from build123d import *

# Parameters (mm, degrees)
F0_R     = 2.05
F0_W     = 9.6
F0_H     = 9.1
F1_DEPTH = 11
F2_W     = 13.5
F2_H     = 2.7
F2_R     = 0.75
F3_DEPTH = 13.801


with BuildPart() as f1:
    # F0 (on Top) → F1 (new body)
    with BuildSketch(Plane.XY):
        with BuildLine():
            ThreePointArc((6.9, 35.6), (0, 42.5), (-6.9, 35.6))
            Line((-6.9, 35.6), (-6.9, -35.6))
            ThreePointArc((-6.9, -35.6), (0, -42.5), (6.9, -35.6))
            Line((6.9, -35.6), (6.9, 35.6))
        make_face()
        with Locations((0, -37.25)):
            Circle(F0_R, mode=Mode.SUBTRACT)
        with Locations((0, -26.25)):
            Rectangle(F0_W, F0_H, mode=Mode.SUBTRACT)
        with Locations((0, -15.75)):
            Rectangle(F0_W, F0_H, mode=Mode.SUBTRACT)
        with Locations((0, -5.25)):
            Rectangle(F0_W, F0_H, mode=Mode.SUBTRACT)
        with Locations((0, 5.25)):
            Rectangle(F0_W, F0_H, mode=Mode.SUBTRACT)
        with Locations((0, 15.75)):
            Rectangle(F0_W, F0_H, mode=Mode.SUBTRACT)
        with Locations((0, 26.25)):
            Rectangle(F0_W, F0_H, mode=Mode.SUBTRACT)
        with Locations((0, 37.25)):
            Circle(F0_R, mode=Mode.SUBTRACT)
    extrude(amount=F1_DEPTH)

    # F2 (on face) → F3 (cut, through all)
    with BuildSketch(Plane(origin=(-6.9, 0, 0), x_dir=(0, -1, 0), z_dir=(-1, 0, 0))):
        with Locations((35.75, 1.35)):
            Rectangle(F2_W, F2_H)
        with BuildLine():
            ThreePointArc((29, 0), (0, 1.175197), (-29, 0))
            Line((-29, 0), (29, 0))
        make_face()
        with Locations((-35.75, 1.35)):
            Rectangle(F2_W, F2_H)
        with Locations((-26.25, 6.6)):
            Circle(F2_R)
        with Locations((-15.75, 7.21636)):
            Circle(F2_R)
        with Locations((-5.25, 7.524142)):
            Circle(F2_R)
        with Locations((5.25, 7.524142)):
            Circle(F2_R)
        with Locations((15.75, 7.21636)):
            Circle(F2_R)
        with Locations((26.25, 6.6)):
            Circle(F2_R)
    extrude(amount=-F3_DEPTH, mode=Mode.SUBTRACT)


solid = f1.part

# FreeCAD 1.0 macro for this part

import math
import FreeCAD as App
import Part
import Sketcher
Q = App.Units.Quantity

doc = App.newDocument("Part")
body = doc.addObject("PartDesign::Body", "Body")

sketch1 = body.newObject("Sketcher::SketchObject", "Sketch")
sketch1.AttachmentSupport = (doc.getObject("XY_Plane"), [""])
sketch1.MapMode = "FlatFace"
sketch1.addGeometry(Part.ArcOfCircle(Part.Circle(App.Vector(0, 35.6, 0), App.Vector(0, 0, 1), 6.9), math.radians(0), math.radians(180)), False)
sketch1.addGeometry(Part.LineSegment(App.Vector(-6.9, 35.6, 0), App.Vector(-6.9, -35.6, 0)), False)
sketch1.addGeometry(Part.ArcOfCircle(Part.Circle(App.Vector(0, -35.6, 0), App.Vector(0, 0, 1), 6.9), math.radians(180), math.radians(360)), False)
sketch1.addGeometry(Part.LineSegment(App.Vector(6.9, -35.6, 0), App.Vector(6.9, 35.6, 0)), False)
sketch1.addGeometry(Part.Circle(App.Vector(0, -37.2, 0), App.Vector(0, 0, 1), 2), False)
sketch1.addGeometry(Part.LineSegment(App.Vector(4.8, -30.8, 0), App.Vector(-4.8, -30.8, 0)), False)
sketch1.addGeometry(Part.LineSegment(App.Vector(-4.8, -30.8, 0), App.Vector(-4.8, -21.7, 0)), False)
sketch1.addGeometry(Part.LineSegment(App.Vector(-4.8, -21.7, 0), App.Vector(4.8, -21.7, 0)), False)
sketch1.addGeometry(Part.LineSegment(App.Vector(4.8, -21.7, 0), App.Vector(4.8, -30.8, 0)), False)
sketch1.addGeometry(Part.LineSegment(App.Vector(4.8, -20.3, 0), App.Vector(-4.8, -20.3, 0)), False)
sketch1.addGeometry(Part.LineSegment(App.Vector(-4.8, -20.3, 0), App.Vector(-4.8, -11.2, 0)), False)
sketch1.addGeometry(Part.LineSegment(App.Vector(-4.8, -11.2, 0), App.Vector(4.8, -11.2, 0)), False)
sketch1.addGeometry(Part.LineSegment(App.Vector(4.8, -11.2, 0), App.Vector(4.8, -20.3, 0)), False)
sketch1.addGeometry(Part.LineSegment(App.Vector(4.8, -9.8, 0), App.Vector(-4.8, -9.8, 0)), False)
sketch1.addGeometry(Part.LineSegment(App.Vector(-4.8, -9.8, 0), App.Vector(-4.8, -0.7, 0)), False)
sketch1.addGeometry(Part.LineSegment(App.Vector(-4.8, -0.7, 0), App.Vector(4.8, -0.7, 0)), False)
sketch1.addGeometry(Part.LineSegment(App.Vector(4.8, -0.7, 0), App.Vector(4.8, -9.8, 0)), False)
sketch1.addGeometry(Part.LineSegment(App.Vector(4.8, 0.7, 0), App.Vector(-4.8, 0.7, 0)), False)
sketch1.addGeometry(Part.LineSegment(App.Vector(-4.8, 0.7, 0), App.Vector(-4.8, 9.8, 0)), False)
sketch1.addGeometry(Part.LineSegment(App.Vector(-4.8, 9.8, 0), App.Vector(4.8, 9.8, 0)), False)
sketch1.addGeometry(Part.LineSegment(App.Vector(4.8, 9.8, 0), App.Vector(4.8, 0.7, 0)), False)
sketch1.addGeometry(Part.LineSegment(App.Vector(4.8, 11.2, 0), App.Vector(-4.8, 11.2, 0)), False)
sketch1.addGeometry(Part.LineSegment(App.Vector(-4.8, 11.2, 0), App.Vector(-4.8, 20.3, 0)), False)
sketch1.addGeometry(Part.LineSegment(App.Vector(-4.8, 20.3, 0), App.Vector(4.8, 20.3, 0)), False)
sketch1.addGeometry(Part.LineSegment(App.Vector(4.8, 20.3, 0), App.Vector(4.8, 11.2, 0)), False)
sketch1.addGeometry(Part.LineSegment(App.Vector(4.8, 21.7, 0), App.Vector(-4.8, 21.7, 0)), False)
sketch1.addGeometry(Part.LineSegment(App.Vector(-4.8, 21.7, 0), App.Vector(-4.8, 30.8, 0)), False)
sketch1.addGeometry(Part.LineSegment(App.Vector(-4.8, 30.8, 0), App.Vector(4.8, 30.8, 0)), False)
sketch1.addGeometry(Part.LineSegment(App.Vector(4.8, 30.8, 0), App.Vector(4.8, 21.7, 0)), False)
sketch1.addGeometry(Part.Circle(App.Vector(0, 37.2, 0), App.Vector(0, 0, 1), 2), False)
sketch1.addConstraint(Sketcher.Constraint("Tangent", 0, 2, 1, 1))
sketch1.addConstraint(Sketcher.Constraint("Tangent", 1, 2, 2, 1))
sketch1.addConstraint(Sketcher.Constraint("Tangent", 2, 2, 3, 1))
sketch1.addConstraint(Sketcher.Constraint("Tangent", 3, 2, 0, 1))
sketch1.addConstraint(Sketcher.Constraint("Coincident", 5, 2, 6, 1))
sketch1.addConstraint(Sketcher.Constraint("Coincident", 6, 2, 7, 1))
sketch1.addConstraint(Sketcher.Constraint("Coincident", 7, 2, 8, 1))
sketch1.addConstraint(Sketcher.Constraint("Coincident", 8, 2, 5, 1))
sketch1.addConstraint(Sketcher.Constraint("Coincident", 9, 2, 10, 1))
sketch1.addConstraint(Sketcher.Constraint("Coincident", 10, 2, 11, 1))
sketch1.addConstraint(Sketcher.Constraint("Coincident", 11, 2, 12, 1))
sketch1.addConstraint(Sketcher.Constraint("Coincident", 12, 2, 9, 1))
sketch1.addConstraint(Sketcher.Constraint("Coincident", 13, 2, 14, 1))
sketch1.addConstraint(Sketcher.Constraint("Coincident", 14, 2, 15, 1))
sketch1.addConstraint(Sketcher.Constraint("Coincident", 15, 2, 16, 1))
sketch1.addConstraint(Sketcher.Constraint("Coincident", 16, 2, 13, 1))
sketch1.addConstraint(Sketcher.Constraint("Coincident", 17, 2, 18, 1))
sketch1.addConstraint(Sketcher.Constraint("Coincident", 18, 2, 19, 1))
sketch1.addConstraint(Sketcher.Constraint("Coincident", 19, 2, 20, 1))
sketch1.addConstraint(Sketcher.Constraint("Coincident", 20, 2, 17, 1))
sketch1.addConstraint(Sketcher.Constraint("Coincident", 21, 2, 22, 1))
sketch1.addConstraint(Sketcher.Constraint("Coincident", 22, 2, 23, 1))
sketch1.addConstraint(Sketcher.Constraint("Coincident", 23, 2, 24, 1))
sketch1.addConstraint(Sketcher.Constraint("Coincident", 24, 2, 21, 1))
sketch1.addConstraint(Sketcher.Constraint("Coincident", 25, 2, 26, 1))
sketch1.addConstraint(Sketcher.Constraint("Coincident", 26, 2, 27, 1))
sketch1.addConstraint(Sketcher.Constraint("Coincident", 27, 2, 28, 1))
sketch1.addConstraint(Sketcher.Constraint("Coincident", 28, 2, 25, 1))
sketch1.addConstraint(Sketcher.Constraint("Vertical", 1))
sketch1.addConstraint(Sketcher.Constraint("Vertical", 3))
sketch1.addConstraint(Sketcher.Constraint("Horizontal", 5))
sketch1.addConstraint(Sketcher.Constraint("Vertical", 6))
sketch1.addConstraint(Sketcher.Constraint("Horizontal", 7))
sketch1.addConstraint(Sketcher.Constraint("Vertical", 8))
sketch1.addConstraint(Sketcher.Constraint("Horizontal", 9))
sketch1.addConstraint(Sketcher.Constraint("Vertical", 10))
sketch1.addConstraint(Sketcher.Constraint("Horizontal", 11))
sketch1.addConstraint(Sketcher.Constraint("Vertical", 12))
sketch1.addConstraint(Sketcher.Constraint("Horizontal", 13))
sketch1.addConstraint(Sketcher.Constraint("Vertical", 14))
sketch1.addConstraint(Sketcher.Constraint("Horizontal", 15))
sketch1.addConstraint(Sketcher.Constraint("Vertical", 16))
sketch1.addConstraint(Sketcher.Constraint("Horizontal", 17))
sketch1.addConstraint(Sketcher.Constraint("Vertical", 18))
sketch1.addConstraint(Sketcher.Constraint("Horizontal", 19))
sketch1.addConstraint(Sketcher.Constraint("Vertical", 20))
sketch1.addConstraint(Sketcher.Constraint("Horizontal", 21))
sketch1.addConstraint(Sketcher.Constraint("Vertical", 22))
sketch1.addConstraint(Sketcher.Constraint("Horizontal", 23))
sketch1.addConstraint(Sketcher.Constraint("Vertical", 24))
sketch1.addConstraint(Sketcher.Constraint("Horizontal", 25))
sketch1.addConstraint(Sketcher.Constraint("Vertical", 26))
sketch1.addConstraint(Sketcher.Constraint("Horizontal", 27))
sketch1.addConstraint(Sketcher.Constraint("Vertical", 28))
sketch1.addConstraint(Sketcher.Constraint("Equal", 4, 29))
sketch1.addConstraint(Sketcher.Constraint("Symmetric", 0, 3, 2, 3, -1, 1))
sketch1.addConstraint(Sketcher.Constraint("Symmetric", 4, 3, 29, 3, -1, 1))
sketch1.addConstraint(Sketcher.Constraint("Symmetric", 15, 2, 17, 2, -1, 1))
sketch1.addConstraint(Sketcher.Constraint("Symmetric", 13, 2, 19, 2, -1, 1))
sketch1.addConstraint(Sketcher.Constraint("Symmetric", 11, 2, 21, 2, -1, 1))
sketch1.addConstraint(Sketcher.Constraint("Symmetric", 9, 2, 23, 2, -1, 1))
sketch1.addConstraint(Sketcher.Constraint("Symmetric", 7, 2, 25, 2, -1, 1))
sketch1.addConstraint(Sketcher.Constraint("Symmetric", 5, 2, 27, 2, -1, 1))
sketch1.addConstraint(Sketcher.Constraint("PointOnObject", 4, 3, -2))
sketch1.addConstraint(Sketcher.Constraint("Vertical", 6, 2, 9, 2))
sketch1.addConstraint(Sketcher.Constraint("Vertical", 8, 2, 11, 2))
sketch1.addConstraint(Sketcher.Constraint("Vertical", 10, 2, 13, 2))
sketch1.addConstraint(Sketcher.Constraint("Vertical", 12, 2, 15, 2))
sketch1.addConstraint(Sketcher.Constraint("Vertical", 14, 2, 17, 2))
sketch1.addConstraint(Sketcher.Constraint("Equal", 8, 10))
sketch1.addConstraint(Sketcher.Constraint("Equal", 12, 14))
sketch1.addConstraint(Sketcher.Constraint("Diameter", 4, Q("4.1 mm")))
sketch1.addConstraint(Sketcher.Constraint("Radius", 0, Q("6.9 mm")))
sketch1.addConstraint(Sketcher.Constraint("DistanceX", 5, 2, 5, 1, Q("9.6 mm")))
sketch1.addConstraint(Sketcher.Constraint("DistanceY", 1, 2, 1, 1, Q("71.2 mm")))
sketch1.addConstraint(Sketcher.Constraint("DistanceY", 6, 1, 6, 2, Q("9.1 mm")))
sketch1.addConstraint(Sketcher.Constraint("DistanceY", 6, 2, 14, 2, Q("21 mm")))
sketch1.addConstraint(Sketcher.Constraint("DistanceY", 10, 2, 18, 2, Q("21 mm")))
sketch1.addConstraint(Sketcher.Constraint("DistanceY", 5, 2, -1, 1, Q("30.8 mm")))
sketch1.addConstraint(Sketcher.Constraint("DistanceY", 4, 3, 29, 3, Q("74.5 mm")))
pad1 = body.newObject("PartDesign::Pad", "Pad")
pad1.Profile = sketch1
pad1.Length = 11

sketch2 = body.newObject("Sketcher::SketchObject", "Sketch001")
sketch2.AttachmentSupport = (doc.getObject("YZ_Plane"), [""])
sketch2.MapMode = "FlatFace"
sketch2.AttachmentOffset = App.Placement(App.Vector(0, 0, -6.9), App.Rotation())
sketch2.addGeometry(Part.LineSegment(App.Vector(-29, 2.7, 0), App.Vector(-29, 0, 0)), False)
sketch2.addGeometry(Part.LineSegment(App.Vector(-29, 0, 0), App.Vector(-42.5, 0, 0)), False)
sketch2.addGeometry(Part.LineSegment(App.Vector(-42.5, 0, 0), App.Vector(-42.5, 2.7, 0)), False)
sketch2.addGeometry(Part.LineSegment(App.Vector(-42.5, 2.7, 0), App.Vector(-29, 2.7, 0)), False)
sketch2.addGeometry(Part.ArcOfCircle(Part.Circle(App.Vector(0, -357.2, 0), App.Vector(0, 0, 1), 358.4), math.radians(85.36), math.radians(94.64)), False)
sketch2.addGeometry(Part.LineSegment(App.Vector(29, 0, 0), App.Vector(-29, 0, 0)), False)
sketch2.addGeometry(Part.LineSegment(App.Vector(42.5, 2.7, 0), App.Vector(42.5, 0, 0)), False)
sketch2.addGeometry(Part.LineSegment(App.Vector(42.5, 0, 0), App.Vector(29, 0, 0)), False)
sketch2.addGeometry(Part.LineSegment(App.Vector(29, 0, 0), App.Vector(29, 2.7, 0)), False)
sketch2.addGeometry(Part.LineSegment(App.Vector(29, 2.7, 0), App.Vector(42.5, 2.7, 0)), False)
sketch2.addGeometry(Part.Circle(App.Vector(26.2, 6.6, 0), App.Vector(0, 0, 1), 0.8), False)
sketch2.addGeometry(Part.Circle(App.Vector(15.8, 7.2, 0), App.Vector(0, 0, 1), 0.8), False)
sketch2.addGeometry(Part.Circle(App.Vector(5.2, 7.5, 0), App.Vector(0, 0, 1), 0.8), False)
sketch2.addGeometry(Part.Circle(App.Vector(-5.2, 7.5, 0), App.Vector(0, 0, 1), 0.8), False)
sketch2.addGeometry(Part.Circle(App.Vector(-15.8, 7.2, 0), App.Vector(0, 0, 1), 0.8), False)
sketch2.addGeometry(Part.Circle(App.Vector(-26.2, 6.6, 0), App.Vector(0, 0, 1), 0.8), False)
sketch2.addConstraint(Sketcher.Constraint("Coincident", 0, 2, 1, 1))
sketch2.addConstraint(Sketcher.Constraint("Coincident", 1, 2, 2, 1))
sketch2.addConstraint(Sketcher.Constraint("Coincident", 2, 2, 3, 1))
sketch2.addConstraint(Sketcher.Constraint("Coincident", 3, 2, 0, 1))
sketch2.addConstraint(Sketcher.Constraint("Coincident", 4, 1, 5, 1))
sketch2.addConstraint(Sketcher.Constraint("Coincident", 5, 2, 4, 2))
sketch2.addConstraint(Sketcher.Constraint("Coincident", 6, 2, 7, 1))
sketch2.addConstraint(Sketcher.Constraint("Coincident", 7, 2, 8, 1))
sketch2.addConstraint(Sketcher.Constraint("Coincident", 8, 2, 9, 1))
sketch2.addConstraint(Sketcher.Constraint("Coincident", 9, 2, 6, 1))
sketch2.addConstraint(Sketcher.Constraint("Vertical", 0))
sketch2.addConstraint(Sketcher.Constraint("Horizontal", 1))
sketch2.addConstraint(Sketcher.Constraint("Vertical", 2))
sketch2.addConstraint(Sketcher.Constraint("Horizontal", 3))
sketch2.addConstraint(Sketcher.Constraint("Horizontal", 5))
sketch2.addConstraint(Sketcher.Constraint("Vertical", 6))
sketch2.addConstraint(Sketcher.Constraint("Horizontal", 7))
sketch2.addConstraint(Sketcher.Constraint("Vertical", 8))
sketch2.addConstraint(Sketcher.Constraint("Horizontal", 9))
sketch2.addConstraint(Sketcher.Constraint("Coincident", 5, 2, 0, 2))
sketch2.addConstraint(Sketcher.Constraint("Coincident", 7, 2, 4, 1))
sketch2.addConstraint(Sketcher.Constraint("Equal", 10, 11))
sketch2.addConstraint(Sketcher.Constraint("Equal", 11, 12))
sketch2.addConstraint(Sketcher.Constraint("Equal", 12, 13))
sketch2.addConstraint(Sketcher.Constraint("Equal", 13, 14))
sketch2.addConstraint(Sketcher.Constraint("Equal", 14, 15))
sketch2.addConstraint(Sketcher.Constraint("Symmetric", 1, 2, 6, 2, -1, 1))
sketch2.addConstraint(Sketcher.Constraint("Symmetric", 12, 3, 13, 3, -2))
sketch2.addConstraint(Sketcher.Constraint("Symmetric", 11, 3, 14, 3, -2))
sketch2.addConstraint(Sketcher.Constraint("Symmetric", 10, 3, 15, 3, -2))
sketch2.addConstraint(Sketcher.Constraint("Symmetric", 3, 2, 8, 2, -2))
sketch2.addConstraint(Sketcher.Constraint("Diameter", 10, Q("1.5 mm")))
sketch2.addConstraint(Sketcher.Constraint("DistanceX", 5, 2, 5, 1, Q("58 mm")))
sketch2.addConstraint(Sketcher.Constraint("DistanceX", 1, 2, 1, 1, Q("13.5 mm")))
sketch2.addConstraint(Sketcher.Constraint("DistanceY", 0, 2, 0, 1, Q("2.7 mm")))
sketch2.addConstraint(Sketcher.Constraint("DistanceX", 12, 3, 10, 3, Q("21 mm")))
sketch2.addConstraint(Sketcher.Constraint("DistanceX", 13, 3, 11, 3, Q("21 mm")))
sketch2.addConstraint(Sketcher.Constraint("DistanceY", -1, 1, 10, 3, Q("6.6 mm")))
sketch2.addConstraint(Sketcher.Constraint("DistanceX", 11, 3, 10, 3, Q("10.5 mm")))
sketch2.addConstraint(Sketcher.Constraint("Radius", 4, Q("358.399948 mm")))
sketch2.addConstraint(Sketcher.Constraint("DistanceY", -1, 1, 11, 3, Q("7.21636 mm")))
sketch2.addConstraint(Sketcher.Constraint("DistanceY", -1, 1, 12, 3, Q("7.524142 mm")))
pocket1 = body.newObject("PartDesign::Pocket", "Pocket")
pocket1.Profile = sketch2
pocket1.Type = "ThroughAll"
pocket1.Reversed = True

doc.recompute()
